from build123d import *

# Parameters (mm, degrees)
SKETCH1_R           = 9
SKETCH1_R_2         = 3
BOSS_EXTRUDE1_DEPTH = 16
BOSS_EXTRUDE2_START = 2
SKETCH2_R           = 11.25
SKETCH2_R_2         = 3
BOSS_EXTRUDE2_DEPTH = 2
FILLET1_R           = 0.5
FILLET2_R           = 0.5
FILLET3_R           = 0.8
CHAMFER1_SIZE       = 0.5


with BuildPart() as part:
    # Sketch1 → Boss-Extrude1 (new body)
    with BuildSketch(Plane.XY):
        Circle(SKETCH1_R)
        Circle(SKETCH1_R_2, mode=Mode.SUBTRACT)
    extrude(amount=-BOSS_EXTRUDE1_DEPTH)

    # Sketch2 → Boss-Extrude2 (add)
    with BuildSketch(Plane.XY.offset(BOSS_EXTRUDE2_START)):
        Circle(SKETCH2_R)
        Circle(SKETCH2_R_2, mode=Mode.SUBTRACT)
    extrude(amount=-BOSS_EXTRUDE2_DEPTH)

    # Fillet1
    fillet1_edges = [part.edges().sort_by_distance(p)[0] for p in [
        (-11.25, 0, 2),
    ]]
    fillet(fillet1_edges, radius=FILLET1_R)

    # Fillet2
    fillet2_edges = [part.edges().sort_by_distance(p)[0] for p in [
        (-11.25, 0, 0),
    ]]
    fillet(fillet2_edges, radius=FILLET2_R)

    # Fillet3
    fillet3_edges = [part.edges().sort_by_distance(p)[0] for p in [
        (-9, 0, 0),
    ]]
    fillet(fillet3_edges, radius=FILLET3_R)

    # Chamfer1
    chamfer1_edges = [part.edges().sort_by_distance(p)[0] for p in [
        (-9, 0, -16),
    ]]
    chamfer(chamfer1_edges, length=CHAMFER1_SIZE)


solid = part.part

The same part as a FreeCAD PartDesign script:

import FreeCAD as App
import Part
import Sketcher
Q = App.Units.Quantity


def edges_at(feature, points):
    """Names of the edges that pass closest to the given points."""
    edges = feature.Shape.Edges
    near = lambda p: min(range(len(edges)), key=lambda i: edges[i].distToShape(Part.Vertex(*p))[0])
    return sorted({f"Edge{near(p) + 1}" for p in points})

doc = App.newDocument("Part")
body = doc.addObject("PartDesign::Body", "Body")

sketch1 = body.newObject("Sketcher::SketchObject", "Sketch")
sketch1.AttachmentSupport = (doc.getObject("XY_Plane"), [""])
sketch1.MapMode = "FlatFace"
sketch1.addGeometry([
    Part.Circle(App.Vector(0, 0, 0), App.Vector(0, 0, 1), 9),
    Part.Circle(App.Vector(0, 0, 0), App.Vector(0, 0, 1), 3),
], False)
sketch1.addConstraint([
    Sketcher.Constraint("Coincident", 0, 3, -1, 1),
    Sketcher.Constraint("Coincident", 1, 3, -1, 1),
    Sketcher.Constraint("Diameter", 0, Q("18 mm")),
    Sketcher.Constraint("Diameter", 1, Q("6 mm")),
])
pad1 = body.newObject("PartDesign::Pad", "Pad")
pad1.Profile = sketch1
pad1.Length = 16
pad1.Reversed = True

sketch2 = body.newObject("Sketcher::SketchObject", "Sketch001")
sketch2.AttachmentSupport = (doc.getObject("XY_Plane"), [""])
sketch2.MapMode = "FlatFace"
sketch2.AttachmentOffset = App.Placement(App.Vector(0, 0, 2), App.Rotation())
sketch2.addGeometry([
    Part.Circle(App.Vector(0, 0, 0), App.Vector(0, 0, 1), 11.2),
    Part.Circle(App.Vector(0, 0, 0), App.Vector(0, 0, 1), 3),
], False)
sketch2.addConstraint([
    Sketcher.Constraint("Coincident", 0, 3, -1, 1),
    Sketcher.Constraint("Coincident", 1, 3, -1, 1),
    Sketcher.Constraint("Diameter", 1, Q("6 mm")),
    Sketcher.Constraint("Diameter", 0, Q("22.5 mm")),
])
pad2 = body.newObject("PartDesign::Pad", "Pad001")
pad2.Profile = sketch2
pad2.Length = 2
pad2.Reversed = True
doc.recompute()

fillet = body.newObject("PartDesign::Fillet", "Fillet")
fillet.Base = (pad2, edges_at(pad2, [(-11.25, 0, 2)]))
fillet.Radius = 0.5
doc.recompute()

fillet2 = body.newObject("PartDesign::Fillet", "Fillet001")
fillet2.Base = (fillet, edges_at(fillet, [(-11.25, 0, 0)]))
fillet2.Radius = 0.5
doc.recompute()

fillet3 = body.newObject("PartDesign::Fillet", "Fillet002")
fillet3.Base = (fillet2, edges_at(fillet2, [(-9, 0, 0)]))
fillet3.Radius = 0.8
doc.recompute()

chamfer = body.newObject("PartDesign::Chamfer", "Chamfer")
chamfer.Base = (fillet3, edges_at(fillet3, [(-9, 0, -16)]))
chamfer.Size = 0.5

doc.recompute()
